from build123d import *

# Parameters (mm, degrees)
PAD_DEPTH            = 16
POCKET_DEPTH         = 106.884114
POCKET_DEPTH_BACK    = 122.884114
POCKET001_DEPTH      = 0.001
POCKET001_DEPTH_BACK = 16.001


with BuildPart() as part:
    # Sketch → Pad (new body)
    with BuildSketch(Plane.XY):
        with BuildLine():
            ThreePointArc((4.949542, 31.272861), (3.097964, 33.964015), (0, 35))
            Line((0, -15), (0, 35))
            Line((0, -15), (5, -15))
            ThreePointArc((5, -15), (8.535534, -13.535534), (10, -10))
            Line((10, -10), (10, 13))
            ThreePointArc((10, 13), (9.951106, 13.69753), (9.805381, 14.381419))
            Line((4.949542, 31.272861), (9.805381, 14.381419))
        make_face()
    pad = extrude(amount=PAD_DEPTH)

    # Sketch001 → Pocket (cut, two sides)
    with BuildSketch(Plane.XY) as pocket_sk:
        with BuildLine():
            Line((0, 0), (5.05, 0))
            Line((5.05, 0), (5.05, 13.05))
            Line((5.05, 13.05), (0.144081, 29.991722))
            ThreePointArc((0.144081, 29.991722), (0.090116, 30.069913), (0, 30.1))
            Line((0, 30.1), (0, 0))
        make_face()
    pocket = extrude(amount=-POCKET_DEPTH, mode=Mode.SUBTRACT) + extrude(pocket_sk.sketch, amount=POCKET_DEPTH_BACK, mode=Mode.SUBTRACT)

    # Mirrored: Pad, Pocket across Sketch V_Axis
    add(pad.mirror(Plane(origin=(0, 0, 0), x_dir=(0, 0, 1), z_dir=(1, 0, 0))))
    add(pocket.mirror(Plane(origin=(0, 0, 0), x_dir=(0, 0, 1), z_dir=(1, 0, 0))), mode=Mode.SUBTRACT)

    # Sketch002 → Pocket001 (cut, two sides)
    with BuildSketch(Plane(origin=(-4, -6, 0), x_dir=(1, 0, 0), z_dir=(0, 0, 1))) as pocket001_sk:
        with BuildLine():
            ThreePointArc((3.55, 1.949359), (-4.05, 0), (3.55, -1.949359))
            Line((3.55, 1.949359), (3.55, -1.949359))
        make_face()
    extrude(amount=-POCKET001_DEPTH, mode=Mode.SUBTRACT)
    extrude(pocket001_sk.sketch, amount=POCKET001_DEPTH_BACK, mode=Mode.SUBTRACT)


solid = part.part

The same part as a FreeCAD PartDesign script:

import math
import FreeCAD as App
import Part
import Sketcher
from FreeCAD import Vector

doc = App.newDocument("Part")
body = doc.addObject("PartDesign::Body", "Body")

# Sketch on XY plane
sketch1 = body.newObject("Sketcher::SketchObject", "Sketch")
sketch1.AttachmentSupport = (doc.getObject("XY_Plane"), [""])
sketch1.MapMode = "FlatFace"
sketch1.addGeometry(Part.ArcOfCircle(Part.Circle(Vector(0, 29.85, 0), Vector(0, 0, 1), 5.15), math.radians(16.038526), math.radians(90.000002)), False)
sketch1.addGeometry(Part.LineSegment(Vector(0, 35, 0), Vector(0, -15, 0)), False)
sketch1.addGeometry(Part.LineSegment(Vector(0, -15, 0), Vector(5, -15, 0)), False)
sketch1.addGeometry(Part.ArcOfCircle(Part.Circle(Vector(5, -10, 0), Vector(0, 0, 1), 5), math.radians(-90.000004), math.radians(0.000004)), False)
sketch1.addGeometry(Part.LineSegment(Vector(10, -10, 0), Vector(10, 13, 0)), False)
sketch1.addGeometry(Part.ArcOfCircle(Part.Circle(Vector(4.999961, 12.999996, 0), Vector(0, 0, 1), 5.000039), math.radians(0.000041), math.radians(16.038451)), False)
sketch1.addGeometry(Part.LineSegment(Vector(9.805381, 14.381419, 0), Vector(4.949542, 31.272861, 0)), False)
sketch1.addConstraint(Sketcher.Constraint("Coincident", 0, 2, 1, 1))
sketch1.addConstraint(Sketcher.Constraint("Coincident", 1, 2, 2, 1))
sketch1.addConstraint(Sketcher.Constraint("Tangent", 2, 2, 3, 1))
sketch1.addConstraint(Sketcher.Constraint("Tangent", 3, 2, 4, 1))
sketch1.addConstraint(Sketcher.Constraint("Tangent", 4, 2, 5, 1))
sketch1.addConstraint(Sketcher.Constraint("Tangent", 5, 2, 6, 1))
sketch1.addConstraint(Sketcher.Constraint("Tangent", 6, 2, 0, 1))
sketch1.addConstraint(Sketcher.Constraint("Vertical", 1))
sketch1.addConstraint(Sketcher.Constraint("Horizontal", 2))
sketch1.addConstraint(Sketcher.Constraint("Vertical", 4))
sketch1.addConstraint(Sketcher.Constraint("PointOnObject", 0, 3, -2))
sketch1.addConstraint(Sketcher.Constraint("PointOnObject", 0, 2, -2))
sketch1.addConstraint(Sketcher.Constraint("Radius", 3, 5.0))
sketch1.addConstraint(Sketcher.Constraint("DistanceX", 2, 1, 2, 2, 5.0))
sketch1.addConstraint(Sketcher.Constraint("DistanceY", 1, 2, 1, 1, 50.0))
sketch1.addConstraint(Sketcher.Constraint("DistanceY", 4, 1, 4, 2, 23.0))
sketch1.addConstraint(Sketcher.Constraint("Radius", 0, 5.15))
sketch1.addConstraint(Sketcher.Constraint("DistanceY", 3, 3, -1, 1, 10.0))
sketch1.addConstraint(Sketcher.Constraint("Radius", 5, 5.000039))
pad1 = body.newObject("PartDesign::Pad", "Pad")
pad1.Profile = sketch1
pad1.Length = 16

# Sketch on XY plane
sketch2 = body.newObject("Sketcher::SketchObject", "Sketch001")
sketch2.AttachmentSupport = (doc.getObject("XY_Plane"), [""])
sketch2.MapMode = "FlatFace"
sketch2.addGeometry(Part.LineSegment(Vector(0, 0, 0), Vector(5.05, 0, 0)), False)
sketch2.addGeometry(Part.LineSegment(Vector(5.05, 0, 0), Vector(5.05, 13.05, 0)), False)
sketch2.addGeometry(Part.LineSegment(Vector(5.05, 13.05, 0), Vector(0.144081, 29.991722, 0)), False)
sketch2.addGeometry(Part.ArcOfCircle(Part.Circle(Vector(0, 29.95, 0), Vector(0, 0, 1), 0.15), math.radians(16.149686), math.radians(90.000017)), False)
sketch2.addGeometry(Part.LineSegment(Vector(0, 30.1, 0), Vector(0, 0, 0)), False)
sketch2.addConstraint(Sketcher.Constraint("Coincident", 0, 2, 1, 1))
sketch2.addConstraint(Sketcher.Constraint("Coincident", 1, 2, 2, 1))
sketch2.addConstraint(Sketcher.Constraint("Tangent", 2, 2, 3, 1))
sketch2.addConstraint(Sketcher.Constraint("Coincident", 3, 2, 4, 1))
sketch2.addConstraint(Sketcher.Constraint("Coincident", 4, 2, 0, 1))
sketch2.addConstraint(Sketcher.Constraint("Horizontal", 0))
sketch2.addConstraint(Sketcher.Constraint("Vertical", 1))
sketch2.addConstraint(Sketcher.Constraint("Vertical", 4))
sketch2.addConstraint(Sketcher.Constraint("Coincident", 4, 2, -1, 1))
sketch2.addConstraint(Sketcher.Constraint("PointOnObject", 3, 3, -2))
sketch2.addConstraint(Sketcher.Constraint("Radius", 3, 0.15))
sketch2.addConstraint(Sketcher.Constraint("DistanceY", 4, 2, 4, 1, 30.1))
sketch2.addConstraint(Sketcher.Constraint("DistanceX", 0, 1, 0, 2, 5.05))
sketch2.addConstraint(Sketcher.Constraint("DistanceY", 1, 1, 1, 2, 13.05))
pocket1 = body.newObject("PartDesign::Pocket", "Pocket")
pocket1.Profile = sketch2
pocket1.Type = "ThroughAll"
pocket1.Midplane = True
doc.recompute()

mirrored = body.newObject("PartDesign::Mirrored", "Mirrored")
mirrored.Originals = [pad1, pocket1]
mirrored.MirrorPlane = (doc.getObject("YZ_Plane"), [""])
body.Tip = mirrored

# Sketch on XY plane
sketch3 = body.newObject("Sketcher::SketchObject", "Sketch002")
sketch3.AttachmentSupport = (doc.getObject("XY_Plane"), [""])
sketch3.MapMode = "FlatFace"
sketch3.addGeometry(Part.ArcOfCircle(Part.Circle(Vector(-4, -6, 0), Vector(0, 0, 1), 4.05), math.radians(28.771858), math.radians(331.228142)), False)
sketch3.addGeometry(Part.LineSegment(Vector(-0.45, -7.949359, 0), Vector(-0.45, -4.050641, 0)), False)
sketch3.addConstraint(Sketcher.Constraint("Coincident", 0, 1, 1, 2))
sketch3.addConstraint(Sketcher.Constraint("Coincident", 1, 1, 0, 2))
sketch3.addConstraint(Sketcher.Constraint("Vertical", 1))
sketch3.addConstraint(Sketcher.Constraint("Radius", 0, 4.05))
sketch3.addConstraint(Sketcher.Constraint("DistanceX", 0, 3, -1, 1, 4.0))
sketch3.addConstraint(Sketcher.Constraint("DistanceY", 0, 3, -1, 1, 6.0))
sketch3.addConstraint(Sketcher.Constraint("DistanceX", 0, 1, -1, 1, 0.45))
pocket2 = body.newObject("PartDesign::Pocket", "Pocket001")
pocket2.Profile = sketch3
pocket2.Type = "ThroughAll"
pocket2.Midplane = True

doc.recompute()
